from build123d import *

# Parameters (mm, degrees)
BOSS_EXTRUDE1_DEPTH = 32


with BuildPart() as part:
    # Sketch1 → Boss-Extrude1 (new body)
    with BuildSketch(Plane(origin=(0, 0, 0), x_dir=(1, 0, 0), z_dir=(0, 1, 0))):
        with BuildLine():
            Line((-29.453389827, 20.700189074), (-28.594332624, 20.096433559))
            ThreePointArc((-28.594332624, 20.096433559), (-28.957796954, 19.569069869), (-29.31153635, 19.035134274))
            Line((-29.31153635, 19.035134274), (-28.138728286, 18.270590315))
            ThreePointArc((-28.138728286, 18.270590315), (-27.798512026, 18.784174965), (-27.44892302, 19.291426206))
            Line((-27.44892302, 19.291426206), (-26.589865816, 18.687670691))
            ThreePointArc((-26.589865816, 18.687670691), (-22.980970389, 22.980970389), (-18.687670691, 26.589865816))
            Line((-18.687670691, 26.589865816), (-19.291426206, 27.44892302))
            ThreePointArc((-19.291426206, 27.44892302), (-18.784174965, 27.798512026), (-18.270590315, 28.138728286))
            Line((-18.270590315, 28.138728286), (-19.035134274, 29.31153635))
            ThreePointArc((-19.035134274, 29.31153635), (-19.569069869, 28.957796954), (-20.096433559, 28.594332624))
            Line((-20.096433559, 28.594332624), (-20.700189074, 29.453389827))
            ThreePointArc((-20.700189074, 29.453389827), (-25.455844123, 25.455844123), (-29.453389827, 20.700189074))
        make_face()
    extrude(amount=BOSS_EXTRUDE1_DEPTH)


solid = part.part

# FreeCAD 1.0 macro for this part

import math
import FreeCAD as App
import Part
import Sketcher
from FreeCAD import Vector
Q = App.Units.Quantity

doc = App.newDocument("Part")
body = doc.addObject("PartDesign::Body", "Body")

# Sketch on XZ plane
sketch1 = doc.addObject("Sketcher::SketchObject", "Sketch")
body.addObject(sketch1)
sketch1.AttachmentSupport = (doc.XZ_Plane, [""])
sketch1.MapMode = "FlatFace"
sketch1.addGeometry(Part.LineSegment(Vector(-29.5, -20.7, 0), Vector(-28.6, -20.1, 0)), False)
sketch1.addGeometry(Part.ArcOfCircle(Part.Circle(Vector(0, 0, 0), Vector(0, 0, 1), 35), math.radians(-147), math.radians(-144.9)), False)
sketch1.addGeometry(Part.LineSegment(Vector(-29.3, -19, 0), Vector(-28.1, -18.3, 0)), False)
sketch1.addGeometry(Part.ArcOfCircle(Part.Circle(Vector(0, 0, 0), Vector(0, 0, 1), 33.6), math.radians(-147), math.radians(-144.9)), False)
sketch1.addGeometry(Part.LineSegment(Vector(-27.4, -19.3, 0), Vector(-26.6, -18.7, 0)), False)
sketch1.addGeometry(Part.ArcOfCircle(Part.Circle(Vector(0, 0, 0), Vector(0, 0, 1), 32.5), math.radians(-144.9), math.radians(-125.1)), False)
sketch1.addGeometry(Part.LineSegment(Vector(-18.7, -26.6, 0), Vector(-19.3, -27.4, 0)), False)
sketch1.addGeometry(Part.ArcOfCircle(Part.Circle(Vector(0, 0, 0), Vector(0, 0, 1), 33.6), math.radians(-125.1), math.radians(-123)), False)
sketch1.addGeometry(Part.LineSegment(Vector(-18.3, -28.1, 0), Vector(-19, -29.3, 0)), False)
sketch1.addGeometry(Part.ArcOfCircle(Part.Circle(Vector(0, 0, 0), Vector(0, 0, 1), 35), math.radians(-125.1), math.radians(-123)), False)
sketch1.addGeometry(Part.LineSegment(Vector(-20.1, -28.6, 0), Vector(-20.7, -29.5, 0)), False)
sketch1.addGeometry(Part.ArcOfCircle(Part.Circle(Vector(0, 0, 0), Vector(0, 0, 1), 36), math.radians(-144.9), math.radians(-125.1)), False)
sketch1.addConstraint(Sketcher.Constraint("Coincident", 0, 2, 1, 2))
sketch1.addConstraint(Sketcher.Constraint("Coincident", 1, 1, 2, 1))
sketch1.addConstraint(Sketcher.Constraint("Coincident", 2, 2, 3, 1))
sketch1.addConstraint(Sketcher.Constraint("Coincident", 3, 2, 4, 1))
sketch1.addConstraint(Sketcher.Constraint("Coincident", 4, 2, 5, 1))
sketch1.addConstraint(Sketcher.Constraint("Coincident", 5, 2, 6, 1))
sketch1.addConstraint(Sketcher.Constraint("Coincident", 6, 2, 7, 1))
sketch1.addConstraint(Sketcher.Constraint("Coincident", 7, 2, 8, 1))
sketch1.addConstraint(Sketcher.Constraint("Coincident", 8, 2, 9, 2))
sketch1.addConstraint(Sketcher.Constraint("Coincident", 9, 1, 10, 1))
sketch1.addConstraint(Sketcher.Constraint("Coincident", 10, 2, 11, 2))
sketch1.addConstraint(Sketcher.Constraint("Coincident", 11, 1, 0, 1))
sketch1.addConstraint(Sketcher.Constraint("Coincident", 1, 3, -1, 1))
sketch1.addConstraint(Sketcher.Constraint("Coincident", 3, 3, -1, 1))
sketch1.addConstraint(Sketcher.Constraint("Coincident", 5, 3, -1, 1))
sketch1.addConstraint(Sketcher.Constraint("Coincident", 7, 3, -1, 1))
sketch1.addConstraint(Sketcher.Constraint("Coincident", 9, 3, -1, 1))
sketch1.addConstraint(Sketcher.Constraint("Coincident", 11, 3, -1, 1))
sketch1.addConstraint(Sketcher.Constraint("Equal", 3, 7))
sketch1.addConstraint(Sketcher.Constraint("Equal", 1, 9))
sketch1.addConstraint(Sketcher.Constraint("Parallel", 0, 4))
sketch1.addConstraint(Sketcher.Constraint("Parallel", 6, 10))
sketch1.addConstraint(Sketcher.Constraint("Equal", 0, 4))
sketch1.addConstraint(Sketcher.Constraint("Radius", 11, 36.0))
sketch1.addConstraint(Sketcher.Constraint("Radius", 5, 32.5))
sketch1.addConstraint(Sketcher.Constraint("Angle", 0, Q("35.1 deg")))
sketch1.addConstraint(Sketcher.Constraint("Angle", 2, Q("33.1 deg")))
sketch1.addConstraint(Sketcher.Constraint("Angle", 6, Q("-125.1 deg")))
sketch1.addConstraint(Sketcher.Constraint("Angle", 8, Q("-123.1 deg")))
sketch1.addConstraint(Sketcher.Constraint("Distance", 0, 1.05))
sketch1.addConstraint(Sketcher.Constraint("DistanceY", 0, 2, 1, 1, 1.061299))
sketch1.addConstraint(Sketcher.Constraint("DistanceX", 9, 1, 8, 2, 1.061299))
sketch1.addConstraint(Sketcher.Constraint("DistanceX", 2, 2, -1, 1, 28.138728))
sketch1.addConstraint(Sketcher.Constraint("DistanceY", 4, 2, -1, 1, 18.687671))
sketch1.addConstraint(Sketcher.Constraint("DistanceX", 5, 2, -1, 1, 18.687671))
sketch1.addConstraint(Sketcher.Constraint("DistanceX", 7, 2, -1, 1, 18.27059))
pad1 = doc.addObject("PartDesign::Pad", "Pad")
body.addObject(pad1)
pad1.Profile = sketch1
pad1.Length = 32
pad1.Reversed = True

doc.recompute()
